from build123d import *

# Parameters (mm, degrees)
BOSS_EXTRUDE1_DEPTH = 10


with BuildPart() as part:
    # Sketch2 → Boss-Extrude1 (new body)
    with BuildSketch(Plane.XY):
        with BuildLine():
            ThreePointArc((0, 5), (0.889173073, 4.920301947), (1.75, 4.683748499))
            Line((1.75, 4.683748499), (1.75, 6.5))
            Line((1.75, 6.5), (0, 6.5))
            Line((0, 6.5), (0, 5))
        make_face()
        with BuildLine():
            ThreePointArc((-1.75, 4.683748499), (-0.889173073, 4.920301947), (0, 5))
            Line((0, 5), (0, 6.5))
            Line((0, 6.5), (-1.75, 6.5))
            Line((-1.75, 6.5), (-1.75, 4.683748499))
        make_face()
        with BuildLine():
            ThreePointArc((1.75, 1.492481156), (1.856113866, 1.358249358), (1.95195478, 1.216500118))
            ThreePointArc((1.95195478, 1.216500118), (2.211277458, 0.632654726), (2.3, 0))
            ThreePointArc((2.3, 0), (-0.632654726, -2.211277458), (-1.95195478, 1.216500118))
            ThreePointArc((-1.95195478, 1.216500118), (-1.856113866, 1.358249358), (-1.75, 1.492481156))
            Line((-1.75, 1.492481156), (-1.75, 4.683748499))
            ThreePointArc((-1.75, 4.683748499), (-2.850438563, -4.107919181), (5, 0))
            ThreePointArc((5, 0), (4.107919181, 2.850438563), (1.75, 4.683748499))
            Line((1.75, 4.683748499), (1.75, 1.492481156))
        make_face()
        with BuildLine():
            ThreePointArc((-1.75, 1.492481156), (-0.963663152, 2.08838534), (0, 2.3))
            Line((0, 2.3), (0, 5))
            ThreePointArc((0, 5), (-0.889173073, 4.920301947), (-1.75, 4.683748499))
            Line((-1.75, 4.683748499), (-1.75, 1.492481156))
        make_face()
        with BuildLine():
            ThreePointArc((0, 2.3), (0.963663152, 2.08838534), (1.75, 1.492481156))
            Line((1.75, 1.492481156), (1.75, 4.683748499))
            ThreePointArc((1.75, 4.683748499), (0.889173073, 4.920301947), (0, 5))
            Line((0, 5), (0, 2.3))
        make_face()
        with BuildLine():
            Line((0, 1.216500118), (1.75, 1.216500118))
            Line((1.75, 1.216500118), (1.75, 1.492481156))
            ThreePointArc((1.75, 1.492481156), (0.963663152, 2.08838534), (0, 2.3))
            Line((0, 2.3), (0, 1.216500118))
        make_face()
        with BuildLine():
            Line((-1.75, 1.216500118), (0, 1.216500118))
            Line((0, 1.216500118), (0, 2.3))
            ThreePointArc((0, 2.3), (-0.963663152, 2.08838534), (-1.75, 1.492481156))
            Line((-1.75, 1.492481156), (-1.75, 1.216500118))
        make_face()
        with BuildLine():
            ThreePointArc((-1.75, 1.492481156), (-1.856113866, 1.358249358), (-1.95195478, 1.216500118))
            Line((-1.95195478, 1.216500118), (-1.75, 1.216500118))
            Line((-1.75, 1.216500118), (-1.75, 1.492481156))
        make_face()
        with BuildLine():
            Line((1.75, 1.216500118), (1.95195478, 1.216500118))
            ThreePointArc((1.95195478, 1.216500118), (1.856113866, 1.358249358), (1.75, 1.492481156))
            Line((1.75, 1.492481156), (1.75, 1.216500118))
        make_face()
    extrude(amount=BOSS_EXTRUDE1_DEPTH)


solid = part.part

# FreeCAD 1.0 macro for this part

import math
import FreeCAD as App
import Part
import Sketcher

doc = App.newDocument("Part")
body = doc.addObject("PartDesign::Body", "Body")

sketch1 = doc.addObject("Sketcher::SketchObject", "Sketch")
body.addObject(sketch1)
sketch1.AttachmentSupport = (doc.XY_Plane, [""])
sketch1.MapMode = "FlatFace"
sketch1.addGeometry([
    Part.ArcOfCircle(Part.Circle(App.Vector(0, 0, 0), App.Vector(0, 0, 1), 5), math.radians(0), math.radians(70)),
    Part.LineSegment(App.Vector(1.8, 4.7, 0), App.Vector(1.8, 6.5, 0)),
    Part.LineSegment(App.Vector(1.8, 6.5, 0), App.Vector(-1.8, 6.5, 0)),
    Part.LineSegment(App.Vector(-1.8, 6.5, 0), App.Vector(-1.8, 4.7, 0)),
    Part.ArcOfCircle(Part.Circle(App.Vector(0, 0, 0), App.Vector(0, 0, 1), 5), math.radians(110), math.radians(360)),
    Part.ArcOfCircle(Part.Circle(App.Vector(0, 0, 0), App.Vector(0, 0, 1), 2.3), math.radians(0), math.radians(32)),
    Part.ArcOfCircle(Part.Circle(App.Vector(0, 0, 0), App.Vector(0, 0, 1), 2.3), math.radians(148), math.radians(360)),
    Part.LineSegment(App.Vector(-2, 1.2, 0), App.Vector(2, 1.2, 0)),
], False)
sketch1.addConstraint([
    Sketcher.Constraint("Coincident", 0, 2, 1, 1),
    Sketcher.Constraint("Coincident", 1, 2, 2, 1),
    Sketcher.Constraint("Coincident", 2, 2, 3, 1),
    Sketcher.Constraint("Coincident", 3, 2, 4, 1),
    Sketcher.Constraint("Tangent", 4, 2, 0, 1),
    Sketcher.Constraint("Tangent", 5, 1, 6, 2),
    Sketcher.Constraint("Coincident", 6, 1, 7, 1),
    Sketcher.Constraint("Coincident", 7, 2, 5, 2),
    Sketcher.Constraint("Vertical", 1),
    Sketcher.Constraint("Horizontal", 2),
    Sketcher.Constraint("Vertical", 3),
    Sketcher.Constraint("Horizontal", 7),
    Sketcher.Constraint("Coincident", 0, 3, -1, 1),
    Sketcher.Constraint("Coincident", 5, 3, -1, 1),
    Sketcher.Constraint("Equal", 0, 4),
    Sketcher.Constraint("Equal", 5, 6),
    Sketcher.Constraint("PointOnObject", 4, 2, -1),
    Sketcher.Constraint("PointOnObject", 5, 1, -1),
    Sketcher.Constraint("Horizontal", 0, 2, 3, 2),
    Sketcher.Constraint("Radius", 0, 5.0),
    Sketcher.Constraint("Radius", 5, 2.3),
    Sketcher.Constraint("DistanceX", 2, 2, 2, 1, 3.5),
    Sketcher.Constraint("DistanceY", -1, 1, 1, 2, 6.5),
    Sketcher.Constraint("DistanceX", 7, 1, 7, 2, 3.90391),
])
pad1 = doc.addObject("PartDesign::Pad", "Pad")
body.addObject(pad1)
pad1.Profile = sketch1
pad1.Length = 10

doc.recompute()
